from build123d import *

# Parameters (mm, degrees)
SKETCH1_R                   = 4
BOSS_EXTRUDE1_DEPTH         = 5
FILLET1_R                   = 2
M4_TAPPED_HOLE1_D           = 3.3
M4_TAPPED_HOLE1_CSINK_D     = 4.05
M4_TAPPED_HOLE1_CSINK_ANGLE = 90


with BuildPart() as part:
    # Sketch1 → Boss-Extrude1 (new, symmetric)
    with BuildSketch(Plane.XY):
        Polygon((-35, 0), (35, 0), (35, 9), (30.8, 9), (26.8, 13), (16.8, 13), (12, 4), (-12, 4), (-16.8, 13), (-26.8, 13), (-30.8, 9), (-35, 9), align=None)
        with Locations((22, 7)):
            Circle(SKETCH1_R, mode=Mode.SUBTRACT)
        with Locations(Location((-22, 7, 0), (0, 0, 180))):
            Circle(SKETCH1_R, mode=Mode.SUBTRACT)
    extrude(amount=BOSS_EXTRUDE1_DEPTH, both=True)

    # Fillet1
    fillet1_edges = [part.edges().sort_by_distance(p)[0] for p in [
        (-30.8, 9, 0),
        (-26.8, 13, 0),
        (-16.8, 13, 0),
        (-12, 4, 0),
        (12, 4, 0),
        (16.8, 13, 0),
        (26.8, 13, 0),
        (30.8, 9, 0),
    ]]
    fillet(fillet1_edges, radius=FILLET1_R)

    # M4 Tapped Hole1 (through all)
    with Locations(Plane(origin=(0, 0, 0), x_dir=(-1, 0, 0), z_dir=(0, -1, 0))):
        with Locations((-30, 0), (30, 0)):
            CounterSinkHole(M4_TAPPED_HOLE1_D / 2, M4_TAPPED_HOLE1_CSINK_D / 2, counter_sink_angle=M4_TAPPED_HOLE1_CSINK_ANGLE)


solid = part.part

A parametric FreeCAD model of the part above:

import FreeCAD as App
import Part
import Sketcher
from FreeCAD import Vector
Q = App.Units.Quantity


def edges_at(feature, points):
    """Names of the edges that pass closest to the given points."""
    edges = feature.Shape.Edges
    near = lambda p: min(range(len(edges)), key=lambda i: edges[i].distToShape(Part.Vertex(*p))[0])
    return sorted({f"Edge{near(p) + 1}" for p in points})

doc = App.newDocument("Part")
body = doc.addObject("PartDesign::Body", "Body")

# Sketch on XY plane
sketch1 = body.newObject("Sketcher::SketchObject", "Sketch")
sketch1.AttachmentSupport = (doc.getObject("XY_Plane"), [""])
sketch1.MapMode = "FlatFace"
sketch1.addGeometry([
    Part.LineSegment(Vector(-35, 0, 0), Vector(35, 0, 0)),  # 0
    Part.LineSegment(Vector(35, 0, 0), Vector(35, 9, 0)),  # 1
    Part.LineSegment(Vector(35, 9, 0), Vector(30.8, 9, 0)),  # 2
    Part.LineSegment(Vector(30.8, 9, 0), Vector(26.8, 13, 0)),  # 3
    Part.LineSegment(Vector(26.8, 13, 0), Vector(16.8, 13, 0)),  # 4
    Part.LineSegment(Vector(16.8, 13, 0), Vector(12, 4, 0)),  # 5
    Part.LineSegment(Vector(12, 4, 0), Vector(-12, 4, 0)),  # 6
    Part.LineSegment(Vector(-12, 4, 0), Vector(-16.8, 13, 0)),  # 7
    Part.LineSegment(Vector(-16.8, 13, 0), Vector(-26.8, 13, 0)),  # 8
    Part.LineSegment(Vector(-26.8, 13, 0), Vector(-30.8, 9, 0)),  # 9
    Part.LineSegment(Vector(-30.8, 9, 0), Vector(-35, 9, 0)),  # 10
    Part.LineSegment(Vector(-35, 9, 0), Vector(-35, 0, 0)),  # 11
    Part.Circle(Vector(-22, 7, 0), Vector(0, 0, 1), 4),  # 12
    Part.Circle(Vector(22, 7, 0), Vector(0, 0, 1), 4),  # 13
], False)
sketch1.addConstraint([
    Sketcher.Constraint("Coincident", 0, 2, 1, 1),
    Sketcher.Constraint("Coincident", 1, 2, 2, 1),
    Sketcher.Constraint("Coincident", 2, 2, 3, 1),
    Sketcher.Constraint("Coincident", 3, 2, 4, 1),
    Sketcher.Constraint("Coincident", 4, 2, 5, 1),
    Sketcher.Constraint("Coincident", 5, 2, 6, 1),
    Sketcher.Constraint("Coincident", 6, 2, 7, 1),
    Sketcher.Constraint("Coincident", 7, 2, 8, 1),
    Sketcher.Constraint("Coincident", 8, 2, 9, 1),
    Sketcher.Constraint("Coincident", 9, 2, 10, 1),
    Sketcher.Constraint("Coincident", 10, 2, 11, 1),
    Sketcher.Constraint("Coincident", 11, 2, 0, 1),
    Sketcher.Constraint("Horizontal", 0),
    Sketcher.Constraint("Vertical", 1),
    Sketcher.Constraint("Horizontal", 2),
    Sketcher.Constraint("Horizontal", 4),
    Sketcher.Constraint("Horizontal", 6),
    Sketcher.Constraint("Horizontal", 8),
    Sketcher.Constraint("Horizontal", 10),
    Sketcher.Constraint("Vertical", 11),
    Sketcher.Constraint("Equal", 12, 13),
    Sketcher.Constraint("Symmetric", 0, 2, 11, 2, -1, 1),
    Sketcher.Constraint("Symmetric", 12, 3, 13, 3, -2),
    Sketcher.Constraint("Symmetric", 4, 2, 7, 2, -2),
    Sketcher.Constraint("Symmetric", 2, 2, 9, 2, -2),
    Sketcher.Constraint("Perpendicular", 3, 9),
    Sketcher.Constraint("Equal", 4, 8),
    Sketcher.Constraint("Equal", 5, 7),
    Sketcher.Constraint("Diameter", 12, Q("8 mm")),
    Sketcher.Constraint("DistanceX", 0, 1, 0, 2, Q("70 mm")),
    Sketcher.Constraint("DistanceX", 4, 2, 4, 1, Q("10 mm")),
    Sketcher.Constraint("DistanceX", 6, 2, 6, 1, Q("24 mm")),
    Sketcher.Constraint("DistanceY", 1, 1, 1, 2, Q("9 mm")),
    Sketcher.Constraint("DistanceX", 2, 2, 2, 1, Q("4.2 mm")),
    Sketcher.Constraint("DistanceX", 12, 3, -1, 1, Q("22 mm")),
    Sketcher.Constraint("DistanceY", -1, 1, 12, 3, Q("7 mm")),
    Sketcher.Constraint("DistanceY", -1, 1, 3, 2, Q("13 mm")),
    Sketcher.Constraint("DistanceY", -1, 1, 5, 2, Q("4 mm")),
])
pad1 = body.newObject("PartDesign::Pad", "Pad")
pad1.Profile = sketch1
pad1.Length = 10
pad1.Midplane = True
doc.recompute()

fillet = body.newObject("PartDesign::Fillet", "Fillet")
fillet.Base = (pad1, edges_at(pad1, [
    (-30.8, 9, 0),
    (-26.8, 13, 0),
    (-16.8, 13, 0),
    (-12, 4, 0),
    (12, 4, 0),
    (16.8, 13, 0),
    (26.8, 13, 0),
    (30.8, 9, 0),
]))
fillet.Radius = 2

# Sketch on XZ plane
sketch2 = body.newObject("Sketcher::SketchObject", "Sketch001")
sketch2.AttachmentSupport = (doc.getObject("XZ_Plane"), [""])
sketch2.MapMode = "FlatFace"
sketch2.addGeometry([
    Part.Circle(Vector(30, 0, 0), Vector(0, 0, 1), 1.6),
    Part.Circle(Vector(-30, 0, 0), Vector(0, 0, 1), 1.6),
], False)
sketch2.addConstraint([
    Sketcher.Constraint("Equal", 0, 1),
    Sketcher.Constraint("Symmetric", 0, 3, 1, 3, -1, 1),
    Sketcher.Constraint("PointOnObject", 0, 3, -1),
    Sketcher.Constraint("Diameter", 0, Q("3.3 mm")),
    Sketcher.Constraint("DistanceX", -1, 1, 0, 3, Q("30 mm")),
])
doc.recompute()
hole = body.newObject("PartDesign::Hole", "Hole")
hole.Profile = sketch2
hole.ThreadType = "None"
hole.Diameter = 3.3
hole.DepthType = "ThroughAll"
hole.HoleCutType = "Countersink"
hole.HoleCutDiameter = 4.05
hole.HoleCutCountersinkAngle = 90

doc.recompute()
